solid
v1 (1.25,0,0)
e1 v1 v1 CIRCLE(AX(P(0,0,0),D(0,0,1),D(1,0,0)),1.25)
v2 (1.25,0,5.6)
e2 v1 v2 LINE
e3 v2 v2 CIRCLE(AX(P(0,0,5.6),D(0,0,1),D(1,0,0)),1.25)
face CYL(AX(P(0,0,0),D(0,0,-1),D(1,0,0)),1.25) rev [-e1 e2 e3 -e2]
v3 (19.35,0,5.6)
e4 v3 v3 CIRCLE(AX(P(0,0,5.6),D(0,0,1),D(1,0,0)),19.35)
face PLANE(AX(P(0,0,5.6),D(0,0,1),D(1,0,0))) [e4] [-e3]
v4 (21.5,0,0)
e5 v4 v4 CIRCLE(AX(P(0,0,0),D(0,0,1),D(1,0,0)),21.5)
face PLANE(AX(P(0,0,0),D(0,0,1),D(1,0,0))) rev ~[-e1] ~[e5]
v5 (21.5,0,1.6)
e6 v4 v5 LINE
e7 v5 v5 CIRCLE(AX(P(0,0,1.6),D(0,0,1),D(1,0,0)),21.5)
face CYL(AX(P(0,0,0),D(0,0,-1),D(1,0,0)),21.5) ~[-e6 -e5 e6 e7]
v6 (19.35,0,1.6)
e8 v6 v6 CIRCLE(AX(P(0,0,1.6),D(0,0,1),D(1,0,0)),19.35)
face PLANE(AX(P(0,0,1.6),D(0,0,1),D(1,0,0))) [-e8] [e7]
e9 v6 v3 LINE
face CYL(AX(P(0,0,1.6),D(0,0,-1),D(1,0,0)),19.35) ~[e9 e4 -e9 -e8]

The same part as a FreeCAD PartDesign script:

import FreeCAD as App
import Part
import Sketcher
Q = App.Units.Quantity

doc = App.newDocument("Part")
body = doc.addObject("PartDesign::Body", "Body")

# Sketch on XY plane
sketch1 = body.newObject("Sketcher::SketchObject", "Sketch")
sketch1.AttachmentSupport = (doc.getObject("XY_Plane"), [""])
sketch1.MapMode = "FlatFace"
sketch1.addGeometry(Part.Circle(App.Vector(0, 0, 0), App.Vector(0, 0, 1), 21.5), False)
sketch1.addConstraint([
    Sketcher.Constraint("Coincident", 0, 3, -1, 1),
    Sketcher.Constraint("Diameter", 0, Q("43 mm")),
])
pad1 = body.newObject("PartDesign::Pad", "Pad")
pad1.Profile = sketch1
pad1.Length = 1.6

# Sketch on XY plane
sketch2 = body.newObject("Sketcher::SketchObject", "Sketch001")
sketch2.AttachmentSupport = (doc.getObject("XY_Plane"), [""])
sketch2.MapMode = "FlatFace"
sketch2.AttachmentOffset = App.Placement(App.Vector(0, 0, 1.6), App.Rotation())
sketch2.addGeometry(Part.Circle(App.Vector(0, 0, 0), App.Vector(0, 0, 1), 19.35), False)
sketch2.addConstraint([
    Sketcher.Constraint("Coincident", 0, 3, -1, 1),
    Sketcher.Constraint("Diameter", 0, Q("38.7 mm")),
])
pad2 = body.newObject("PartDesign::Pad", "Pad001")
pad2.Profile = sketch2
pad2.Length = 4

# Sketch on XY plane
sketch3 = body.newObject("Sketcher::SketchObject", "Sketch002")
sketch3.AttachmentSupport = (doc.getObject("XY_Plane"), [""])
sketch3.MapMode = "FlatFace"
sketch3.addGeometry(Part.Circle(App.Vector(0, 0, 0), App.Vector(0, 0, 1), 1.25), False)
sketch3.addConstraint([
    Sketcher.Constraint("Coincident", 0, 3, -1, 1),
    Sketcher.Constraint("Diameter", 0, Q("2.5 mm")),
])
pocket1 = body.newObject("PartDesign::Pocket", "Pocket")
pocket1.Profile = sketch3
pocket1.Length = 11.2
pocket1.Midplane = True

doc.recompute()
